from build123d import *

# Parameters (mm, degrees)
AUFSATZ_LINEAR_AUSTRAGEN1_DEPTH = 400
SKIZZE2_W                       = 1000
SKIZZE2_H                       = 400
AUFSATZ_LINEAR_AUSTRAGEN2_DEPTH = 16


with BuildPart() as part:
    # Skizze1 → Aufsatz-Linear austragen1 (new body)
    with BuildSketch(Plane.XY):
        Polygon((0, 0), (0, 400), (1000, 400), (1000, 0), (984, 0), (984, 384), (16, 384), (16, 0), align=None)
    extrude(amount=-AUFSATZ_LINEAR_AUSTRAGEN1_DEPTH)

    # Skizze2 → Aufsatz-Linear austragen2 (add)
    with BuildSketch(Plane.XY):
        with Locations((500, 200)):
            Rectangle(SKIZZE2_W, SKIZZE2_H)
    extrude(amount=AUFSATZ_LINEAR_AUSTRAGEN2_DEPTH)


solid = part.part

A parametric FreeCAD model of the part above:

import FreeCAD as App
import Part
import Sketcher

doc = App.newDocument("Part")
body = doc.addObject("PartDesign::Body", "Body")

# Sketch on XY plane
sketch1 = doc.addObject("Sketcher::SketchObject", "Sketch")
body.addObject(sketch1)
sketch1.AttachmentSupport = (doc.XY_Plane, [""])
sketch1.MapMode = "FlatFace"
sketch1.addGeometry(Part.LineSegment(App.Vector(0, 400, 0), App.Vector(0, 0, 0)), False)
sketch1.addGeometry(Part.LineSegment(App.Vector(0, 0, 0), App.Vector(16, 0, 0)), False)
sketch1.addGeometry(Part.LineSegment(App.Vector(16, 0, 0), App.Vector(16, 384, 0)), False)
sketch1.addGeometry(Part.LineSegment(App.Vector(16, 384, 0), App.Vector(984, 384, 0)), False)
sketch1.addGeometry(Part.LineSegment(App.Vector(984, 384, 0), App.Vector(984, 0, 0)), False)
sketch1.addGeometry(Part.LineSegment(App.Vector(984, 0, 0), App.Vector(1000, 0, 0)), False)
sketch1.addGeometry(Part.LineSegment(App.Vector(1000, 0, 0), App.Vector(1000, 400, 0)), False)
sketch1.addGeometry(Part.LineSegment(App.Vector(1000, 400, 0), App.Vector(0, 400, 0)), False)
sketch1.addConstraint(Sketcher.Constraint("Coincident", 0, 2, 1, 1))
sketch1.addConstraint(Sketcher.Constraint("Coincident", 1, 2, 2, 1))
sketch1.addConstraint(Sketcher.Constraint("Coincident", 2, 2, 3, 1))
sketch1.addConstraint(Sketcher.Constraint("Coincident", 3, 2, 4, 1))
sketch1.addConstraint(Sketcher.Constraint("Coincident", 4, 2, 5, 1))
sketch1.addConstraint(Sketcher.Constraint("Coincident", 5, 2, 6, 1))
sketch1.addConstraint(Sketcher.Constraint("Coincident", 6, 2, 7, 1))
sketch1.addConstraint(Sketcher.Constraint("Coincident", 7, 2, 0, 1))
sketch1.addConstraint(Sketcher.Constraint("Vertical", 0))
sketch1.addConstraint(Sketcher.Constraint("Horizontal", 1))
sketch1.addConstraint(Sketcher.Constraint("Vertical", 2))
sketch1.addConstraint(Sketcher.Constraint("Horizontal", 3))
sketch1.addConstraint(Sketcher.Constraint("Vertical", 4))
sketch1.addConstraint(Sketcher.Constraint("Horizontal", 5))
sketch1.addConstraint(Sketcher.Constraint("Vertical", 6))
sketch1.addConstraint(Sketcher.Constraint("Horizontal", 7))
sketch1.addConstraint(Sketcher.Constraint("Coincident", 0, 2, -1, 1))
sketch1.addConstraint(Sketcher.Constraint("PointOnObject", 4, 2, -1))
sketch1.addConstraint(Sketcher.Constraint("Equal", 1, 5))
sketch1.addConstraint(Sketcher.Constraint("DistanceX", 1, 1, 1, 2, 16.0))
sketch1.addConstraint(Sketcher.Constraint("DistanceX", 3, 1, 3, 2, 968.0))
sketch1.addConstraint(Sketcher.Constraint("DistanceY", 0, 2, 0, 1, 400.0))
sketch1.addConstraint(Sketcher.Constraint("DistanceY", 2, 1, 2, 2, 384.0))
pad1 = doc.addObject("PartDesign::Pad", "Pad")
body.addObject(pad1)
pad1.Profile = sketch1
pad1.Length = 400
pad1.Reversed = True

# Sketch on XY plane
sketch2 = doc.addObject("Sketcher::SketchObject", "Sketch001")
body.addObject(sketch2)
sketch2.AttachmentSupport = (doc.XY_Plane, [""])
sketch2.MapMode = "FlatFace"
sketch2.addGeometry(Part.LineSegment(App.Vector(0, 400, 0), App.Vector(0, 0, 0)), False)
sketch2.addGeometry(Part.LineSegment(App.Vector(0, 0, 0), App.Vector(1000, 0, 0)), False)
sketch2.addGeometry(Part.LineSegment(App.Vector(1000, 0, 0), App.Vector(1000, 400, 0)), False)
sketch2.addGeometry(Part.LineSegment(App.Vector(1000, 400, 0), App.Vector(0, 400, 0)), False)
sketch2.addConstraint(Sketcher.Constraint("Coincident", 0, 2, 1, 1))
sketch2.addConstraint(Sketcher.Constraint("Coincident", 1, 2, 2, 1))
sketch2.addConstraint(Sketcher.Constraint("Coincident", 2, 2, 3, 1))
sketch2.addConstraint(Sketcher.Constraint("Coincident", 3, 2, 0, 1))
sketch2.addConstraint(Sketcher.Constraint("Vertical", 0))
sketch2.addConstraint(Sketcher.Constraint("Horizontal", 1))
sketch2.addConstraint(Sketcher.Constraint("Vertical", 2))
sketch2.addConstraint(Sketcher.Constraint("Horizontal", 3))
sketch2.addConstraint(Sketcher.Constraint("Coincident", 0, 2, -1, 1))
sketch2.addConstraint(Sketcher.Constraint("DistanceX", 1, 1, 1, 2, 1000.0))
sketch2.addConstraint(Sketcher.Constraint("DistanceY", 0, 2, 0, 1, 400.0))
pad2 = doc.addObject("PartDesign::Pad", "Pad001")
body.addObject(pad2)
pad2.Profile = sketch2
pad2.Length = 16

doc.recompute()
